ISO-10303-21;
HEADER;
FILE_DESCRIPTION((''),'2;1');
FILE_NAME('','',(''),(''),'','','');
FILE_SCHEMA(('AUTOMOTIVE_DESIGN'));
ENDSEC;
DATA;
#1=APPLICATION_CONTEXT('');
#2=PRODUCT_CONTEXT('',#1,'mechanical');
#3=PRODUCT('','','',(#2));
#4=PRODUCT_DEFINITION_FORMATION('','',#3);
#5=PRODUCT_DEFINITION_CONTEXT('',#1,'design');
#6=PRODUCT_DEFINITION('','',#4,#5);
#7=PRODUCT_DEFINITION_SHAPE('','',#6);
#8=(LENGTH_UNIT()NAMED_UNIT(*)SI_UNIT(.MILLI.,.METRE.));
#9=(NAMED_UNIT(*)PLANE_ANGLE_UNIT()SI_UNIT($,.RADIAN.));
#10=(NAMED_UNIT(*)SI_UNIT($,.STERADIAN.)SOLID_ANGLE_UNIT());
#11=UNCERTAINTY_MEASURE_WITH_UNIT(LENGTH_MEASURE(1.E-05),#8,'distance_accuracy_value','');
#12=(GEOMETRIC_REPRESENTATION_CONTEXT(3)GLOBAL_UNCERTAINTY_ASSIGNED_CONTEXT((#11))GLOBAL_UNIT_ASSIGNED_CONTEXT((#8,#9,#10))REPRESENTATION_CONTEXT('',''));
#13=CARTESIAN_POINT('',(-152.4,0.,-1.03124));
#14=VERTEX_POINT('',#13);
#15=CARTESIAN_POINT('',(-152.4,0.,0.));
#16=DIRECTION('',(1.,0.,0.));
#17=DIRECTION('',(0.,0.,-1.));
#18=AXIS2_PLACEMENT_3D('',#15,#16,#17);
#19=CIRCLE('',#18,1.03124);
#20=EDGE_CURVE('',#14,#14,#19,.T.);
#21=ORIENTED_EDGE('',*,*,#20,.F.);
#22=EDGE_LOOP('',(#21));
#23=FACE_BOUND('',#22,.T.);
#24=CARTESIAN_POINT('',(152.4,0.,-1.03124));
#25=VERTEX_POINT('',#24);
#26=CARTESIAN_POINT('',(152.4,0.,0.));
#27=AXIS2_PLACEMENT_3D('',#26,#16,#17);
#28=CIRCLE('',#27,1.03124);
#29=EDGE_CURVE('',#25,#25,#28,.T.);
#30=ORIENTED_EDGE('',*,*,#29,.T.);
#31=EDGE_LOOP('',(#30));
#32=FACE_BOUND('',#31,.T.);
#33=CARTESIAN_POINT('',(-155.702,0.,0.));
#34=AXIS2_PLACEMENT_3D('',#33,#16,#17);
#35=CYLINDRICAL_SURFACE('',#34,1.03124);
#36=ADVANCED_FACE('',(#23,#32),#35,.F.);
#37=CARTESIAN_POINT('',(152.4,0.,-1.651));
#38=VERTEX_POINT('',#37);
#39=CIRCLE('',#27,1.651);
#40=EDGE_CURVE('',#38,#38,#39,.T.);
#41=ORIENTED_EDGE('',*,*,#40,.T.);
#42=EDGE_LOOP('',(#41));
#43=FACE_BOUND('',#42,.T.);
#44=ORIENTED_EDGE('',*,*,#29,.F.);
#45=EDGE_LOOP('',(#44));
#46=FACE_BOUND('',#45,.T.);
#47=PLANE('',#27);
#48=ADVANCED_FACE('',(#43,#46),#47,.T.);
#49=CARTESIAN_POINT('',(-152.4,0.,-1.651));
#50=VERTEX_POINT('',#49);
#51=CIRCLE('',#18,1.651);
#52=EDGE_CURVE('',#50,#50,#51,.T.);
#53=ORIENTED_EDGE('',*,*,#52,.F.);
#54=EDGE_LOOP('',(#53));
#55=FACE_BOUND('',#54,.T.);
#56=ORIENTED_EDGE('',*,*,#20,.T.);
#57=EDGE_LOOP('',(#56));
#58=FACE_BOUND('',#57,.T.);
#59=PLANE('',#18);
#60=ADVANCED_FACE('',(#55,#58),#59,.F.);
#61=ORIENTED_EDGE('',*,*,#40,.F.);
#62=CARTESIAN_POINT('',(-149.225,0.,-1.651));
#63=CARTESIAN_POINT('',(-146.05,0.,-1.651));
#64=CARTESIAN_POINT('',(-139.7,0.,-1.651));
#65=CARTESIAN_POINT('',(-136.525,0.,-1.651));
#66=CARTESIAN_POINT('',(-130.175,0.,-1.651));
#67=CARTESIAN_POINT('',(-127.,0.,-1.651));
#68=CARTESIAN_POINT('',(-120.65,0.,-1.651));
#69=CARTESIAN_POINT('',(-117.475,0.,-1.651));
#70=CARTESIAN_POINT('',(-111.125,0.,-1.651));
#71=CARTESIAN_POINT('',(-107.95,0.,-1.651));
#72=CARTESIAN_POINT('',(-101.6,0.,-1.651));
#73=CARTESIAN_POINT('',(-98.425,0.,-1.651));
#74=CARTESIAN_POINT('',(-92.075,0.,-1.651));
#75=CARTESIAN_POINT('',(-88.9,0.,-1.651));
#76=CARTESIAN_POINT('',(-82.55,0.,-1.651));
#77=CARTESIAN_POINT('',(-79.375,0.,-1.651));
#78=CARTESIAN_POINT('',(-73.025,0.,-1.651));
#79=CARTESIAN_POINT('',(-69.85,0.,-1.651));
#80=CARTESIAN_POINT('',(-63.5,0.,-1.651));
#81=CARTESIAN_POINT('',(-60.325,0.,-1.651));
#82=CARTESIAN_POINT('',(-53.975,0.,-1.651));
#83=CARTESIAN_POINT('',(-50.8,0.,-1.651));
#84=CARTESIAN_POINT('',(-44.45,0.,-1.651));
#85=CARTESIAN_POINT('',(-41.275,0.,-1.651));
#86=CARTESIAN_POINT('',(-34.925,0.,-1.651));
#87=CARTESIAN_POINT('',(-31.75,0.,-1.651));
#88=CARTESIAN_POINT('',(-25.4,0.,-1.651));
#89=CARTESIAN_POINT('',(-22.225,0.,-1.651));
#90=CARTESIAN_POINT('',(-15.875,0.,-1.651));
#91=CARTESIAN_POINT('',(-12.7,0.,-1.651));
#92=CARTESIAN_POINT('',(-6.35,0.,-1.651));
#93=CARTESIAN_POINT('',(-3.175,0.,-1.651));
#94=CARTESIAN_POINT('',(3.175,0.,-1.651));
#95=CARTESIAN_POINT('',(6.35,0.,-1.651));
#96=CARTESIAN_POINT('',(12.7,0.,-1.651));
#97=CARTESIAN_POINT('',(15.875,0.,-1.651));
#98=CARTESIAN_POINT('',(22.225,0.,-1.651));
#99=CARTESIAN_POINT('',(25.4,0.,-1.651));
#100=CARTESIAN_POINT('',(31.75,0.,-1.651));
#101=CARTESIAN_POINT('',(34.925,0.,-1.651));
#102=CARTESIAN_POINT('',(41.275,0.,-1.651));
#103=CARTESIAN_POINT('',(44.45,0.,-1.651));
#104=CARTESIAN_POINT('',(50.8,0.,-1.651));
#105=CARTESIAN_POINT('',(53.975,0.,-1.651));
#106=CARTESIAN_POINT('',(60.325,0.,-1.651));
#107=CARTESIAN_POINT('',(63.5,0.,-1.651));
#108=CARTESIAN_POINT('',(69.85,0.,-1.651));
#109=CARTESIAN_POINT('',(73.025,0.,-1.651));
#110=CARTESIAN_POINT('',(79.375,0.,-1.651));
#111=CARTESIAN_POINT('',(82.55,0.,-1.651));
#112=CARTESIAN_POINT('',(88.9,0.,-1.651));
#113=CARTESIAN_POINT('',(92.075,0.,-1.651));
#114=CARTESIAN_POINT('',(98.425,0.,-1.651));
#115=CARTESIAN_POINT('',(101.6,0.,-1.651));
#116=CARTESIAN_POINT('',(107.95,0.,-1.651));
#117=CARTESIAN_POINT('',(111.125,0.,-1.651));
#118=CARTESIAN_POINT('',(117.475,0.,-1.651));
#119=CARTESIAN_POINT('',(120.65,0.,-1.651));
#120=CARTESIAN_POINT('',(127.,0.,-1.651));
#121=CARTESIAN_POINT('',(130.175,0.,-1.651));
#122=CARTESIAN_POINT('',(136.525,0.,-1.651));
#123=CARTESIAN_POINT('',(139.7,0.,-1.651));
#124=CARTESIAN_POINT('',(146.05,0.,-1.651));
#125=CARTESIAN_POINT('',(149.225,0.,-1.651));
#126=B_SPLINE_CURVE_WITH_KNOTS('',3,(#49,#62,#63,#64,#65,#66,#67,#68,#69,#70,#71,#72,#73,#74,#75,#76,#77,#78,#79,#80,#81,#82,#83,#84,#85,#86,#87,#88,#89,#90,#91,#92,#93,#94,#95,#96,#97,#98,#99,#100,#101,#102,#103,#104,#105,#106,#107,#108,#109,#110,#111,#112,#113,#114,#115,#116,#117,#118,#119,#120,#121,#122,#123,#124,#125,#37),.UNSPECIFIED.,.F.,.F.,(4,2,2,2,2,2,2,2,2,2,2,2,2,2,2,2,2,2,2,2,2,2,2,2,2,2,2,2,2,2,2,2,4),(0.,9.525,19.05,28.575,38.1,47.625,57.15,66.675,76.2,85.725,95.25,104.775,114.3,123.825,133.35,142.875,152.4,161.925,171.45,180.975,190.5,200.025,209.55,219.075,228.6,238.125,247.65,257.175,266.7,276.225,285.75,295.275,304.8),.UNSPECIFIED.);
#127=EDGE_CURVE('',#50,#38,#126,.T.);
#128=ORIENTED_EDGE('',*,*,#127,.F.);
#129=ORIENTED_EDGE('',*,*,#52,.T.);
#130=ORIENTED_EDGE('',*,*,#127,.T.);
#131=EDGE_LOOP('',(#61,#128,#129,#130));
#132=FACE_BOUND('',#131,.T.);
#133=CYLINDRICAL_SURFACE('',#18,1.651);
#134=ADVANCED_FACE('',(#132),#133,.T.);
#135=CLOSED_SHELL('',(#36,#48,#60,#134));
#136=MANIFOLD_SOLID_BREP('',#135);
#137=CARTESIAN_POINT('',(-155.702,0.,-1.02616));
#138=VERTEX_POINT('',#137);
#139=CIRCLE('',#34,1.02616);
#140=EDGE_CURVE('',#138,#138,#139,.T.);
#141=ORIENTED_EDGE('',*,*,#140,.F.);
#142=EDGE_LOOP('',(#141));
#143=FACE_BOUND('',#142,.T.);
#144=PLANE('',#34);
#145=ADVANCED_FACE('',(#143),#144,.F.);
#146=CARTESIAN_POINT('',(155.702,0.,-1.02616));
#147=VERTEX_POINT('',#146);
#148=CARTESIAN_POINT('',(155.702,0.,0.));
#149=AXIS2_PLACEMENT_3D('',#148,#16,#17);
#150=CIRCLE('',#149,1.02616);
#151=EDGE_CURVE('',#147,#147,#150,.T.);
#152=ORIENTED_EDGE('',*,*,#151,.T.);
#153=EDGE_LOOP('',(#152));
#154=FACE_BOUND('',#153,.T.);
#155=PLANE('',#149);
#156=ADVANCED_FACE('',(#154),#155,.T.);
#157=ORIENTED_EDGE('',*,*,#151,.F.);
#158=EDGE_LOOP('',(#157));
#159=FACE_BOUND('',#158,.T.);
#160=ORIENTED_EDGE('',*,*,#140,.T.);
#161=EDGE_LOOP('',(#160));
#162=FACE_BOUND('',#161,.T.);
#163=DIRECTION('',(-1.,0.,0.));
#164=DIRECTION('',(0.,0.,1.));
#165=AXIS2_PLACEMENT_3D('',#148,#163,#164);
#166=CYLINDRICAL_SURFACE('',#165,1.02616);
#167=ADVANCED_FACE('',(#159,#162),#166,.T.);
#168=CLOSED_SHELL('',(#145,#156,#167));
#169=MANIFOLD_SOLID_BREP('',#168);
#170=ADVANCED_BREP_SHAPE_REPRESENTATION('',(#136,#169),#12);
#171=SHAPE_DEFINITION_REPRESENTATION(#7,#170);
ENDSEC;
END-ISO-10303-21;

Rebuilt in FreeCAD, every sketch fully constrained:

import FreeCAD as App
import Part
import Sketcher
Q = App.Units.Quantity

doc = App.newDocument("Part")
params = doc.addObject("Spreadsheet::Sheet", "Params")
for row, (alias, value) in enumerate([
    ("sketch1_diameter", "0.13 in"),
    ("pad1_length", "12 in"),
    ("pad2_length", "6.13 in"),
    ("pad2_length2", "6.13 in"),
], start=1):
    params.set(f"A{row}", alias)
    params.set(f"B{row}", "=" + value)
    params.setAlias(f"B{row}", alias)

body = doc.addObject("PartDesign::Body", "Body")

sketch1 = body.newObject("Sketcher::SketchObject", "Sketch")
sketch1.AttachmentSupport = (doc.getObject("YZ_Plane"), [""])
sketch1.MapMode = "FlatFace"
sketch1.addGeometry(Part.Circle(App.Vector(0, 0, 0), App.Vector(0, 0, 1), 1.7), False)
sketch1.addGeometry(Part.Circle(App.Vector(0, 0, 0), App.Vector(0, 0, 1), 1), False)
sketch1.addConstraint(Sketcher.Constraint("Coincident", 0, 3, -1, 1))
sketch1.addConstraint(Sketcher.Constraint("Coincident", 1, 3, -1, 1))
sketch1.addConstraint(Sketcher.Constraint("Diameter", 0, Q("0.13 in")))
sketch1.addConstraint(Sketcher.Constraint("Diameter", 1, Q("0.0808 in")))
sketch1.setExpression("Constraints[2]", "Params.sketch1_diameter")
pad1 = body.newObject("PartDesign::Pad", "Pad")
pad1.Profile = sketch1
pad1.setExpression("Length", "Params.pad1_length")
pad1.Midplane = True

sketch2 = body.newObject("Sketcher::SketchObject", "Sketch001")
sketch2.AttachmentSupport = (doc.getObject("YZ_Plane"), [""])
sketch2.MapMode = "FlatFace"
sketch2.AttachmentOffset = App.Placement(App.Vector(0, 0, 6 * 25.4), App.Rotation())
sketch2.addGeometry(Part.Circle(App.Vector(0, 0, 0), App.Vector(0, 0, 1), 1), False)
sketch2.addGeometry(Part.Circle(App.Vector(0, 0, 0), App.Vector(0, 0, 1), 1), False)
sketch2.addConstraint(Sketcher.Constraint("Coincident", 0, 3, -1, 1))
sketch2.addConstraint(Sketcher.Constraint("Coincident", 1, 3, -1, 1))
sketch2.addConstraint(Sketcher.Constraint("Diameter", 0, Q("0.0812 in")))
sketch2.addConstraint(Sketcher.Constraint("Diameter", 1, Q("0.0808 in")))
pocket1 = body.newObject("PartDesign::Pocket", "Pocket")
pocket1.Profile = sketch2
pocket1.Type = "ThroughAll"
body2 = doc.addObject("PartDesign::Body", "Body001")

sketch3 = body2.newObject("Sketcher::SketchObject", "Sketch002")
sketch3.AttachmentSupport = (doc.getObject("YZ_Plane001"), [""])
sketch3.MapMode = "FlatFace"
sketch3.addGeometry(Part.Circle(App.Vector(0, 0, 0), App.Vector(0, 0, 1), 1), False)
sketch3.addConstraint(Sketcher.Constraint("Coincident", 0, 3, -1, 1))
sketch3.addConstraint(Sketcher.Constraint("Diameter", 0, Q("0.0808 in")))
pad2 = body2.newObject("PartDesign::Pad", "Pad001")
pad2.Profile = sketch3
pad2.Type = "TwoLengths"
pad2.setExpression("Length", "Params.pad2_length")
pad2.setExpression("Length2", "Params.pad2_length2")

doc.recompute()
